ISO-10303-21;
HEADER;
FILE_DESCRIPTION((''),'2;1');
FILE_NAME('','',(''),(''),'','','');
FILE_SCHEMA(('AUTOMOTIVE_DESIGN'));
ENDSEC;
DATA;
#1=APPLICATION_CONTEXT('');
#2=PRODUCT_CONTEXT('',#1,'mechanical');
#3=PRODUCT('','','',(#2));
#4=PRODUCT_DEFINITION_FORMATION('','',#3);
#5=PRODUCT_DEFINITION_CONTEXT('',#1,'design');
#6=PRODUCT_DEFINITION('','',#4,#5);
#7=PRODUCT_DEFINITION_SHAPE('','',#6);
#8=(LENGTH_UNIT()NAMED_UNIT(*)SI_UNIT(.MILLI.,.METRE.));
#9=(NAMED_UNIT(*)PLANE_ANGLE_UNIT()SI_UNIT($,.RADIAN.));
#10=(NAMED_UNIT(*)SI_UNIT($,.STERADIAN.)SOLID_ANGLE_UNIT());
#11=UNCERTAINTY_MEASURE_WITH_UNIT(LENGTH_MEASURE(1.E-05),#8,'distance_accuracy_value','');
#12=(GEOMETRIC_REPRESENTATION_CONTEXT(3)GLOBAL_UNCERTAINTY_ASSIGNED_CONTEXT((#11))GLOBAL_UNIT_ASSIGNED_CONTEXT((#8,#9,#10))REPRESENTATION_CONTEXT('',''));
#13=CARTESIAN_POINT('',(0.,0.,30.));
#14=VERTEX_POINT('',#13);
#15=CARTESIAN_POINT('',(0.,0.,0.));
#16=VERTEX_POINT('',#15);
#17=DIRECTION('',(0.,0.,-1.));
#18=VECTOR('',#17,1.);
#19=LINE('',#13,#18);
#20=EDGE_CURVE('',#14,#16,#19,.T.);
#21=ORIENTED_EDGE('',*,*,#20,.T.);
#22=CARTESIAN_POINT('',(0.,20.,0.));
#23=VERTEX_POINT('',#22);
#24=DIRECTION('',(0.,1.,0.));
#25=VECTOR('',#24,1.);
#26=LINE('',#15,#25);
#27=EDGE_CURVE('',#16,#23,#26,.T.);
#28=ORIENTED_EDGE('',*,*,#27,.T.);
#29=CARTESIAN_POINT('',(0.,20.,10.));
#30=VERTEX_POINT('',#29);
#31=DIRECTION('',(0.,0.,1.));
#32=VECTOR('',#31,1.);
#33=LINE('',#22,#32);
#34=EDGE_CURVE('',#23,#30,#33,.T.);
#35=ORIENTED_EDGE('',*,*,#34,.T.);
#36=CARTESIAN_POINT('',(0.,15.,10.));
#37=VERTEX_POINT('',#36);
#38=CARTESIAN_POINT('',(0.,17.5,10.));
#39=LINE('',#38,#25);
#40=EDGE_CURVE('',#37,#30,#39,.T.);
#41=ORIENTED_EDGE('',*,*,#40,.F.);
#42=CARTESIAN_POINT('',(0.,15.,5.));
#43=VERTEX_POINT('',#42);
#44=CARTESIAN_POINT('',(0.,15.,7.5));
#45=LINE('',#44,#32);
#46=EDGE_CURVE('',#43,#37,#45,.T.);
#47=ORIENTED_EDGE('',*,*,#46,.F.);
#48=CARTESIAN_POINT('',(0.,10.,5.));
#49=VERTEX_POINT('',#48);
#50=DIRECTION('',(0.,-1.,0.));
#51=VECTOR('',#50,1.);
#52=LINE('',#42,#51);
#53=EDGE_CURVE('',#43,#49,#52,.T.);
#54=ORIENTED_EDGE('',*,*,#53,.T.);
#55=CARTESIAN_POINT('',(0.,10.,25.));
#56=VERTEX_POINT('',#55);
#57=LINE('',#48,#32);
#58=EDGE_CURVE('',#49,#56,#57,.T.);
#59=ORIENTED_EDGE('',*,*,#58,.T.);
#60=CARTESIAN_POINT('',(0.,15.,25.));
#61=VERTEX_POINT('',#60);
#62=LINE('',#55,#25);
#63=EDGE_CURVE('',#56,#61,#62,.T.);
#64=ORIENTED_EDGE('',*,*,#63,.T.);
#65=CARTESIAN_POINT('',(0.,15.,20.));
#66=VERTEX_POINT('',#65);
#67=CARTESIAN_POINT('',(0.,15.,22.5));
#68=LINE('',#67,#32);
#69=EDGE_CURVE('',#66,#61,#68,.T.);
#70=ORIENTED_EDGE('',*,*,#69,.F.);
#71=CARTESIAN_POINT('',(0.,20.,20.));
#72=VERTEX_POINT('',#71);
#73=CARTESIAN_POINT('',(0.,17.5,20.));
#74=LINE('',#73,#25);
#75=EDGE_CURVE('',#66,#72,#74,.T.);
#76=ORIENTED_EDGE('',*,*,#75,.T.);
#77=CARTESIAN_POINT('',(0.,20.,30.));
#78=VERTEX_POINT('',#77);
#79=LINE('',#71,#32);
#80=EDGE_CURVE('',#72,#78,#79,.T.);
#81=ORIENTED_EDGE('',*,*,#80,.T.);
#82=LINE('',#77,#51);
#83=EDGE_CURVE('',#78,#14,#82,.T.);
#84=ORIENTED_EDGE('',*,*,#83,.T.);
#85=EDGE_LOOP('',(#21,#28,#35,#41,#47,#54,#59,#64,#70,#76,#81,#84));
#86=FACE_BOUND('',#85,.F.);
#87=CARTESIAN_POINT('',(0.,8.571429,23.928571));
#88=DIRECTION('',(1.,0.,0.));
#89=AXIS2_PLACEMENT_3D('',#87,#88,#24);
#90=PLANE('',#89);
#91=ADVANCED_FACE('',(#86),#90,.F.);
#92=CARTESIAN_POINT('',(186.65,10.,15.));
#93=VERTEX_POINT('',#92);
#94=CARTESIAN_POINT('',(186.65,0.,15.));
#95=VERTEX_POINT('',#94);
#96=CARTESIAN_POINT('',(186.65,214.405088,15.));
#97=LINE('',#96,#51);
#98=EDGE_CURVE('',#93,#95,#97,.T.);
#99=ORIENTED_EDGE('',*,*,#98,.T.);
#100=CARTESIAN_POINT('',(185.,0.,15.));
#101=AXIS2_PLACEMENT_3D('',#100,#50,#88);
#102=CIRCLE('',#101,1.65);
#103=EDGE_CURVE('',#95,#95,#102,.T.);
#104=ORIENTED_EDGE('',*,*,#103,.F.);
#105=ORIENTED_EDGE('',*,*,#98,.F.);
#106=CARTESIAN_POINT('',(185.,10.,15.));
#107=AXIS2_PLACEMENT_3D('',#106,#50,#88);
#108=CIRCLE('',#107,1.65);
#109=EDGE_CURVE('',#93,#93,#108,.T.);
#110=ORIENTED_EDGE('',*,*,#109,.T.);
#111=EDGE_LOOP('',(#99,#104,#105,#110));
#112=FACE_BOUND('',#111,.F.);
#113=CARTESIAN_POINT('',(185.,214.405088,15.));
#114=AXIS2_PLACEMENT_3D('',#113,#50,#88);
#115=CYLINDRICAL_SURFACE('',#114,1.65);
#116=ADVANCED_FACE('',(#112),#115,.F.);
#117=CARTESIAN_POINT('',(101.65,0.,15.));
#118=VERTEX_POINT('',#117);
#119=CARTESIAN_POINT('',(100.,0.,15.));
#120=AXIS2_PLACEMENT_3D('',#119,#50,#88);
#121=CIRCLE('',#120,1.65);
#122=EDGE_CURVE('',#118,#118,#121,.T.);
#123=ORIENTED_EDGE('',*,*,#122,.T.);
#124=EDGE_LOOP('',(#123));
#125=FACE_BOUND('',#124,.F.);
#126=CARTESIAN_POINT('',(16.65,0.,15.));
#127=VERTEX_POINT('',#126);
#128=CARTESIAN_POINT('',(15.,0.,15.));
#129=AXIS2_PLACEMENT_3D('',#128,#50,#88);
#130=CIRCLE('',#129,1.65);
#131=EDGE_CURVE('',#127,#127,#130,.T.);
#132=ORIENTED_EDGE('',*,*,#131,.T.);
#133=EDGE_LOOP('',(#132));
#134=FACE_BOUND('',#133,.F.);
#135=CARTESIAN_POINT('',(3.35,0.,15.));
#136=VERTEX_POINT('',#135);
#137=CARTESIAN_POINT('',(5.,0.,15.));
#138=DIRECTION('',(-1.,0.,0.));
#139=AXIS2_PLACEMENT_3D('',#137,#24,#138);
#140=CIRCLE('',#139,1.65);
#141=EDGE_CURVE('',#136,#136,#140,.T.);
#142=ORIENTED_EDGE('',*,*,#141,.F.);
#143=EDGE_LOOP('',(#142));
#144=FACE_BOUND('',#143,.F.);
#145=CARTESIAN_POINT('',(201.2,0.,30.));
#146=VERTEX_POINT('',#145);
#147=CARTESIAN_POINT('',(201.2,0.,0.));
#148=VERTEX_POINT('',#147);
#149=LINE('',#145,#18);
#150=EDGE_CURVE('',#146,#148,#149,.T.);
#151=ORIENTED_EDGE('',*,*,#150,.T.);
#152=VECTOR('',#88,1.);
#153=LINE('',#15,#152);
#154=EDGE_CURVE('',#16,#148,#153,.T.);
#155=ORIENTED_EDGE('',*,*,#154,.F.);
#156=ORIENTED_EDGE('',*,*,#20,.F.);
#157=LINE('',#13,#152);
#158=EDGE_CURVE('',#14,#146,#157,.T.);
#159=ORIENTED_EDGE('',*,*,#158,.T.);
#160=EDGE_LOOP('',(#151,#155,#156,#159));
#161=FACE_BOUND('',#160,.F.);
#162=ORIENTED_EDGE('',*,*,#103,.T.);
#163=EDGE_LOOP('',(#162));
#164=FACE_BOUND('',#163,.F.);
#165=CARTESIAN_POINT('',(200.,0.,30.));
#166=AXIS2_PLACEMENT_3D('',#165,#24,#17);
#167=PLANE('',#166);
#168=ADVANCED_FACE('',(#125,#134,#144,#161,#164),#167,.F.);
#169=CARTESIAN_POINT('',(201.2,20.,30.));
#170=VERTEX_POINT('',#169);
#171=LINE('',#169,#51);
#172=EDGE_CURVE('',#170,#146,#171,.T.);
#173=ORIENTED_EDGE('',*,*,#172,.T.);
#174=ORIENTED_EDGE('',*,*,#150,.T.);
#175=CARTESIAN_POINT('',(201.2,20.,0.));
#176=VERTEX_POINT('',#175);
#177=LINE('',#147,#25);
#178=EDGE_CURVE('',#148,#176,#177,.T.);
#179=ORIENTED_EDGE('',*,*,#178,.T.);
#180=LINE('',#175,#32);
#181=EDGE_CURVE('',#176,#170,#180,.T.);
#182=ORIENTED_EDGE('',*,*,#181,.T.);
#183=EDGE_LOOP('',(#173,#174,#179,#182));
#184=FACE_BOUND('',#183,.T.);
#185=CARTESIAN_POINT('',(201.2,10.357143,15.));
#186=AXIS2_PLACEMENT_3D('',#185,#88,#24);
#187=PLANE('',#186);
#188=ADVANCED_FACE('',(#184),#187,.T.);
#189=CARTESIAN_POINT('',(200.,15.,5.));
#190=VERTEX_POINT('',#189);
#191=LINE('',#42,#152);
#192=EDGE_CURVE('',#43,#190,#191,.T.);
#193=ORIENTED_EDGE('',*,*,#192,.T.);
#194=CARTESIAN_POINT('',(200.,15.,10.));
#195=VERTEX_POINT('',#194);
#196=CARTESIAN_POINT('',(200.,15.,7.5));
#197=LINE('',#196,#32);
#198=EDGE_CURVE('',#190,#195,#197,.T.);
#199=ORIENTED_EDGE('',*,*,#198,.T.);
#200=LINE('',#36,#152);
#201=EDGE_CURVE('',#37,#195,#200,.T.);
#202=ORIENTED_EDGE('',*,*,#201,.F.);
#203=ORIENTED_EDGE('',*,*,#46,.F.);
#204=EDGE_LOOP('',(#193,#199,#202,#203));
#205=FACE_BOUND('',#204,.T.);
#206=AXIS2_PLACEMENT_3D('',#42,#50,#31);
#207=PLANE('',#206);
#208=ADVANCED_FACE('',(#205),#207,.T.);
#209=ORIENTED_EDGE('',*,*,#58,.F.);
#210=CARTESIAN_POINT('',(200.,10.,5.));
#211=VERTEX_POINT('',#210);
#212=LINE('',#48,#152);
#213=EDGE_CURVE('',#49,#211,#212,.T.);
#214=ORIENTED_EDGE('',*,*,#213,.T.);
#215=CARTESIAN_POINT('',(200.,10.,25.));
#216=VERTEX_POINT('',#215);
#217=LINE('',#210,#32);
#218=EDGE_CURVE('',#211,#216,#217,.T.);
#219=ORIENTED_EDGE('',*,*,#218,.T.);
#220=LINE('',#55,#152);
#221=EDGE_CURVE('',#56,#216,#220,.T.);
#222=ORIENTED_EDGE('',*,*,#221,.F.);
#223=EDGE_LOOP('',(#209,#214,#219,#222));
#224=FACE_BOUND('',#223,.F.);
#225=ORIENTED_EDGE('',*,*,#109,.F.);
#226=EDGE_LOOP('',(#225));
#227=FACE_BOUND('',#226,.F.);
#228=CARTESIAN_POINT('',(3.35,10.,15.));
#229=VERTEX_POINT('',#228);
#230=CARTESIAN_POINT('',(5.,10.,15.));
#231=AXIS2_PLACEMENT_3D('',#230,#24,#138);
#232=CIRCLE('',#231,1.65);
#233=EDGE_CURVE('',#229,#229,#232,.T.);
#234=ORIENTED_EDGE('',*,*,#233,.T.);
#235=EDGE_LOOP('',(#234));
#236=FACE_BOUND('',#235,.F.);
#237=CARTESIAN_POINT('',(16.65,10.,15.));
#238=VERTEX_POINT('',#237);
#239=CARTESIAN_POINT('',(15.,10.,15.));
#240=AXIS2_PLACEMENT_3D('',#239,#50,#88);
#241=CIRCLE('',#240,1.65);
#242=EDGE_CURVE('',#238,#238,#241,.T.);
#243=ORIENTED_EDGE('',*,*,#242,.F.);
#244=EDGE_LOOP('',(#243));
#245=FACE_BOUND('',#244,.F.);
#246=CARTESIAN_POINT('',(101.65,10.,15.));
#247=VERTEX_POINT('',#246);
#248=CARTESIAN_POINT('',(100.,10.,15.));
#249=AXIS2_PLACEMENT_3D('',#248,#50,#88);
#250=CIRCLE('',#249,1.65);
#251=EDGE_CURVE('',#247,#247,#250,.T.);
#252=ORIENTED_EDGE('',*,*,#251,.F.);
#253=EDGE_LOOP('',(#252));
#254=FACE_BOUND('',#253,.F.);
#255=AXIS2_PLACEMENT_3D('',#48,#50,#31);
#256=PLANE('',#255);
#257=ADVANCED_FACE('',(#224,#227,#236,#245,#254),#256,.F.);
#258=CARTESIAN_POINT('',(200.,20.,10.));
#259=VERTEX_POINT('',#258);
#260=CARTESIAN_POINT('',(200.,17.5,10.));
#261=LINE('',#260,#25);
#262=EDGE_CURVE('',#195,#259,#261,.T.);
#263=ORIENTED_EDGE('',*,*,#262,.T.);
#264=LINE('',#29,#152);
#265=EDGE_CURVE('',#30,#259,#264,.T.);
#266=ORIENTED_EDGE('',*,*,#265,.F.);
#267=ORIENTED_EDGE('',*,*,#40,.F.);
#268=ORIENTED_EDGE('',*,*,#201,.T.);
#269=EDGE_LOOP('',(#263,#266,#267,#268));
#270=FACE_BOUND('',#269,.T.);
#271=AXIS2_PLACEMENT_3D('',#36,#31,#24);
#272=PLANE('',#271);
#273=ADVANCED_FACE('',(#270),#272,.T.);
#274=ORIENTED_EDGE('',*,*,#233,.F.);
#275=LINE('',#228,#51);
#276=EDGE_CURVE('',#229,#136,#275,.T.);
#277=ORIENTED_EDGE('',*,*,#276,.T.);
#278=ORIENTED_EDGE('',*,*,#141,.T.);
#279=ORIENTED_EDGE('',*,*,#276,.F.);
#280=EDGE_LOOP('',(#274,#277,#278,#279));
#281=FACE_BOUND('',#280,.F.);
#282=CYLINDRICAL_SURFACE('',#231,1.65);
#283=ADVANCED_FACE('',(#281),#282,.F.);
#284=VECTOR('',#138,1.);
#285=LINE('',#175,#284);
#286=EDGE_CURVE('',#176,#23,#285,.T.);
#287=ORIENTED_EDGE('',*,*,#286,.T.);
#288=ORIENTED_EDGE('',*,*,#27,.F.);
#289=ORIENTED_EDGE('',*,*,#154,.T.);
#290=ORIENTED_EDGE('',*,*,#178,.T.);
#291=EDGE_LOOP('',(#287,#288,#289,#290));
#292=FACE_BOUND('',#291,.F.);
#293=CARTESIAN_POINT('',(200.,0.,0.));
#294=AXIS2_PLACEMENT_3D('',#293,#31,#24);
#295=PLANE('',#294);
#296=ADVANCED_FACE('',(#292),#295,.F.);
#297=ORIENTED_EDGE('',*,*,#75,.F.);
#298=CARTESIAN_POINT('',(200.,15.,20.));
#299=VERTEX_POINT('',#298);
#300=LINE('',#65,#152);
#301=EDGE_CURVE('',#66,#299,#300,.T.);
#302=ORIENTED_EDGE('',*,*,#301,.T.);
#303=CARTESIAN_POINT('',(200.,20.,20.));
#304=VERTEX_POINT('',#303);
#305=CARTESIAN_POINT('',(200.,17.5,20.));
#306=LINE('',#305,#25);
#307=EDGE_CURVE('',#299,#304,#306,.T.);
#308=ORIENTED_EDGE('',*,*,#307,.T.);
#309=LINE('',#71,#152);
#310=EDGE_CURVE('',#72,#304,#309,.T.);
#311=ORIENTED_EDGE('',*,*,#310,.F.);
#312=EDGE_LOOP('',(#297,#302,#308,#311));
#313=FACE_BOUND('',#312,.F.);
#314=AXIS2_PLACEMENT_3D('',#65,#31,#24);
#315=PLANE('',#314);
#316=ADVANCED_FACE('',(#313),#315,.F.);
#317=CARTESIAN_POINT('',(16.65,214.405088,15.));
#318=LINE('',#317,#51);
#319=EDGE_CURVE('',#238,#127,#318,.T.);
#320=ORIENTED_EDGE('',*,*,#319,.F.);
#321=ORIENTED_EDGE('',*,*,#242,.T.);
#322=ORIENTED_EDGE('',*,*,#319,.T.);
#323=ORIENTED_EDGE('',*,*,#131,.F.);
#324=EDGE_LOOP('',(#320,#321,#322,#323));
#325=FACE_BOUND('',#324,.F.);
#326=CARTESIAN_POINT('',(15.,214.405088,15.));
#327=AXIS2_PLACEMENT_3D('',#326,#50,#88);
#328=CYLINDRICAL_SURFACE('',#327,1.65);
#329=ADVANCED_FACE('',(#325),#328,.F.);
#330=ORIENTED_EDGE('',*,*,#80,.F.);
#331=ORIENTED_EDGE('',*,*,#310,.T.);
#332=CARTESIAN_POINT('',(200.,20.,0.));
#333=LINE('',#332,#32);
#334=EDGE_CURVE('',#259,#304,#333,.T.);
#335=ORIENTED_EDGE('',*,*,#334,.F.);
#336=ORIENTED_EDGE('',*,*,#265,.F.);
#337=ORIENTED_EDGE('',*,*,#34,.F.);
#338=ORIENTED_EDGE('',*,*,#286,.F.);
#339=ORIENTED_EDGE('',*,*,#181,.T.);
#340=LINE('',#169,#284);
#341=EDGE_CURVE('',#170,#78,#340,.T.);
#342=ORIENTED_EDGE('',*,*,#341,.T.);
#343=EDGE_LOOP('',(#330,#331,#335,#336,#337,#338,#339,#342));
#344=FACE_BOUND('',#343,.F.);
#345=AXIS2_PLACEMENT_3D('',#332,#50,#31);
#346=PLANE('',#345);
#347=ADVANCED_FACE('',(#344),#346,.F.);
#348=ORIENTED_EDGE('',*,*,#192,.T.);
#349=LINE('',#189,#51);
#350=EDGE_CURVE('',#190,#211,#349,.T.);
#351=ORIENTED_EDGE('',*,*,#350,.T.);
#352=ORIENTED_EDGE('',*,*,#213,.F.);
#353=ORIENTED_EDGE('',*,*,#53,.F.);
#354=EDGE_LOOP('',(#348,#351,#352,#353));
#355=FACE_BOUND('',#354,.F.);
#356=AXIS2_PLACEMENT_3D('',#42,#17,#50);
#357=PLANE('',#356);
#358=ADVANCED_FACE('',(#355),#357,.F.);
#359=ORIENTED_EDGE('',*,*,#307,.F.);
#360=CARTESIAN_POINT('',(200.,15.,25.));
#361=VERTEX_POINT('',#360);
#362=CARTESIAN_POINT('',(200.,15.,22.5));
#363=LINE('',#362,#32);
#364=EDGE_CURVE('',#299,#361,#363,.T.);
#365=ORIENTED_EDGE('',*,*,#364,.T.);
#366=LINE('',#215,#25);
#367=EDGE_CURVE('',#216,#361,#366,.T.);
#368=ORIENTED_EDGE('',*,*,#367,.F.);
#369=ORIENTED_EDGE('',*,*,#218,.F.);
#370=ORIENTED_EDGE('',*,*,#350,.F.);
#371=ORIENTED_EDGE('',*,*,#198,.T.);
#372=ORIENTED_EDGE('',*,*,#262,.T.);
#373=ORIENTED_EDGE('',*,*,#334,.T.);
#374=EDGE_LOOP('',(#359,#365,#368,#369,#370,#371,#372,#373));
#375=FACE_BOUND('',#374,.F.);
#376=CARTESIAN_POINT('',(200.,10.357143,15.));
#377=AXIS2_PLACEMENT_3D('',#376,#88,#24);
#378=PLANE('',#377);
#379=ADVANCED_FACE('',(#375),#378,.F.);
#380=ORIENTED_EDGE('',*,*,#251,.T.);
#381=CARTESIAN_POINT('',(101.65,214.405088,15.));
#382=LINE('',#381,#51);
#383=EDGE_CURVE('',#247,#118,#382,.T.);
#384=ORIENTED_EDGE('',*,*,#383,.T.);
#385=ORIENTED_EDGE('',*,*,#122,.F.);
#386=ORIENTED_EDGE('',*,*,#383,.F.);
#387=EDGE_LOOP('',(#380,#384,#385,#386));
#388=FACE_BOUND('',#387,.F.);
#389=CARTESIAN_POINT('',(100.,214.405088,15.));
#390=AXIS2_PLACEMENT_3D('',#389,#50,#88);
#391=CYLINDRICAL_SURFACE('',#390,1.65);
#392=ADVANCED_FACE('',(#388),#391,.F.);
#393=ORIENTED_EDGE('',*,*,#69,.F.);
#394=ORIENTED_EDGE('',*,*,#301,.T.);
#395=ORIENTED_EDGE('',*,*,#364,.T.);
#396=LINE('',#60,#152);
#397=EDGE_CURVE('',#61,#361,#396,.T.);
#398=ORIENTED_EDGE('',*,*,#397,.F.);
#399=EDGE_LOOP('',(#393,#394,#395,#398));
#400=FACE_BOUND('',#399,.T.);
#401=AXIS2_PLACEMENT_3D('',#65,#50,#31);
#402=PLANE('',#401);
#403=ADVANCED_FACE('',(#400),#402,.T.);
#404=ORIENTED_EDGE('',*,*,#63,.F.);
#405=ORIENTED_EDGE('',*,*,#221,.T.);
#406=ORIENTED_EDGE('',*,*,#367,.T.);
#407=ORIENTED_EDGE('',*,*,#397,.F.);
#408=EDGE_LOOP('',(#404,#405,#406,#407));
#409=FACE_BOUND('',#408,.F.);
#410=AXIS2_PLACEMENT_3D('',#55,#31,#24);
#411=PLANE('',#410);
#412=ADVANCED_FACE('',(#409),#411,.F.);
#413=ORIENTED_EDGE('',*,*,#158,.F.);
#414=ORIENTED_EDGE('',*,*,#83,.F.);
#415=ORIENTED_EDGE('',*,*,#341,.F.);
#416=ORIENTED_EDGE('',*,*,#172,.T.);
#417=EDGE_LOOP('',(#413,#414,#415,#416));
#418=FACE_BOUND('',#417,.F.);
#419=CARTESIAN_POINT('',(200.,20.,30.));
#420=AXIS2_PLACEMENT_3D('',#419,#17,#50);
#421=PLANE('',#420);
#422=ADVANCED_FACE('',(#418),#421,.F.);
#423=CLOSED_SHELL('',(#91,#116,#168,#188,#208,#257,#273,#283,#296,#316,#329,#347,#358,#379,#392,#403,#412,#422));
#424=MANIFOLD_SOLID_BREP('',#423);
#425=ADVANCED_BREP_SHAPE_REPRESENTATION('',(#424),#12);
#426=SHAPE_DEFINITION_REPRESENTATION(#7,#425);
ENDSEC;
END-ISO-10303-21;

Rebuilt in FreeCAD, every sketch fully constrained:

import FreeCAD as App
import Part
import Sketcher

V = App.Vector
Q = App.Units.Quantity

doc = App.newDocument("Part")
body = doc.addObject("PartDesign::Body", "Body")

sketch1 = body.newObject("Sketcher::SketchObject", "Sketch")
sketch1.AttachmentSupport = (doc.getObject("YZ_Plane"), [""])
sketch1.MapMode = "FlatFace"
sketch1.addGeometry([
    Part.LineSegment(V(0, 30, 0), V(0, 0, 0)),
    Part.LineSegment(V(0, 0, 0), V(20, 0, 0)),
    Part.LineSegment(V(20, 0, 0), V(20, 10, 0)),
    Part.LineSegment(V(20, 10, 0), V(15, 10, 0)),
    Part.LineSegment(V(15, 10, 0), V(15, 5, 0)),
    Part.LineSegment(V(15, 5, 0), V(10, 5, 0)),
    Part.LineSegment(V(10, 5, 0), V(10, 25, 0)),
    Part.LineSegment(V(10, 25, 0), V(15, 25, 0)),
    Part.LineSegment(V(15, 25, 0), V(15, 20, 0)),
    Part.LineSegment(V(15, 20, 0), V(20, 20, 0)),
    Part.LineSegment(V(20, 20, 0), V(20, 30, 0)),
    Part.LineSegment(V(20, 30, 0), V(0, 30, 0)),
], False)
sketch1.addConstraint([
    Sketcher.Constraint("Coincident", 0, 2, 1, 1),
    Sketcher.Constraint("Coincident", 1, 2, 2, 1),
    Sketcher.Constraint("Coincident", 2, 2, 3, 1),
    Sketcher.Constraint("Coincident", 3, 2, 4, 1),
    Sketcher.Constraint("Coincident", 4, 2, 5, 1),
    Sketcher.Constraint("Coincident", 5, 2, 6, 1),
    Sketcher.Constraint("Coincident", 6, 2, 7, 1),
    Sketcher.Constraint("Coincident", 7, 2, 8, 1),
    Sketcher.Constraint("Coincident", 8, 2, 9, 1),
    Sketcher.Constraint("Coincident", 9, 2, 10, 1),
    Sketcher.Constraint("Coincident", 10, 2, 11, 1),
    Sketcher.Constraint("Coincident", 11, 2, 0, 1),
    Sketcher.Constraint("Vertical", 0),
    Sketcher.Constraint("Horizontal", 1),
    Sketcher.Constraint("Vertical", 2),
    Sketcher.Constraint("Horizontal", 3),
    Sketcher.Constraint("Vertical", 4),
    Sketcher.Constraint("Horizontal", 5),
    Sketcher.Constraint("Vertical", 6),
    Sketcher.Constraint("Horizontal", 7),
    Sketcher.Constraint("Vertical", 8),
    Sketcher.Constraint("Horizontal", 9),
    Sketcher.Constraint("Vertical", 10),
    Sketcher.Constraint("Horizontal", 11),
    Sketcher.Constraint("Coincident", 0, 2, -1, 1),
    Sketcher.Constraint("Vertical", 4, 2, 7, 2),
    Sketcher.Constraint("Vertical", 2, 2, 9, 2),
    Sketcher.Constraint("Equal", 3, 5),
    Sketcher.Constraint("Equal", 9, 4),
    Sketcher.Constraint("Equal", 11, 6),
    Sketcher.Constraint("Equal", 4, 8),
    Sketcher.Constraint("Equal", 2, 10),
    Sketcher.Constraint("DistanceX", 1, 1, 1, 2, Q("20 mm")),
    Sketcher.Constraint("DistanceX", 3, 2, 3, 1, Q("5 mm")),
    Sketcher.Constraint("DistanceY", 0, 2, 0, 1, Q("30 mm")),
])
pad1 = body.newObject("PartDesign::Pad", "Pad")
pad1.Profile = sketch1
pad1.Length = 200

sketch2 = body.newObject("Sketcher::SketchObject", "Sketch001")
sketch2.AttachmentSupport = (doc.getObject("YZ_Plane"), [""])
sketch2.MapMode = "FlatFace"
sketch2.AttachmentOffset = App.Placement(V(0, 0, 200), App.Rotation())
sketch2.addGeometry([
    Part.LineSegment(V(20, 30, 0), V(0, 30, 0)),
    Part.LineSegment(V(0, 30, 0), V(0, 0, 0)),
    Part.LineSegment(V(0, 0, 0), V(20, 0, 0)),
    Part.LineSegment(V(20, 0, 0), V(20, 30, 0)),
], False)
sketch2.addConstraint([
    Sketcher.Constraint("Coincident", 0, 2, 1, 1),
    Sketcher.Constraint("Coincident", 1, 2, 2, 1),
    Sketcher.Constraint("Coincident", 2, 2, 3, 1),
    Sketcher.Constraint("Coincident", 3, 2, 0, 1),
    Sketcher.Constraint("Horizontal", 0),
    Sketcher.Constraint("Vertical", 1),
    Sketcher.Constraint("Horizontal", 2),
    Sketcher.Constraint("Vertical", 3),
    Sketcher.Constraint("Coincident", 1, 2, -1, 1),
    Sketcher.Constraint("DistanceX", 0, 2, 0, 1, Q("20 mm")),
    Sketcher.Constraint("DistanceY", 1, 2, 1, 1, Q("30 mm")),
])
pad2 = body.newObject("PartDesign::Pad", "Pad001")
pad2.Profile = sketch2
pad2.Length = 1.2

sketch3 = body.newObject("Sketcher::SketchObject", "Sketch002")
sketch3.AttachmentSupport = (doc.getObject("XZ_Plane"), [""])
sketch3.MapMode = "FlatFace"
sketch3.AttachmentOffset = App.Placement(V(0, 0, -10), App.Rotation())
sketch3.addGeometry(Part.Circle(V(5, 15, 0), V(0, 0, 1), 1.6), False)
sketch3.addConstraint([
    Sketcher.Constraint("Diameter", 0, Q("3.3 mm")),
    Sketcher.Constraint("DistanceX", -1, 1, 0, 3, Q("5 mm")),
    Sketcher.Constraint("DistanceY", -1, 1, 0, 3, Q("15 mm")),
])
pocket1 = body.newObject("PartDesign::Pocket", "Pocket")
pocket1.Profile = sketch3
pocket1.Length = 25
pocket1.Reversed = True

sketch4 = body.newObject("Sketcher::SketchObject", "Sketch003")
sketch4.AttachmentSupport = (doc.getObject("XZ_Plane"), [""])
sketch4.MapMode = "FlatFace"
sketch4.AttachmentOffset = App.Placement(V(0, 0, -10), App.Rotation())
sketch4.addGeometry([
    Part.Circle(V(15, 15, 0), V(0, 0, 1), 1.6),
    Part.Circle(V(100, 15, 0), V(0, 0, 1), 1.6),
    Part.Circle(V(185, 15, 0), V(0, 0, 1), 1.6),
], False)
sketch4.addConstraint([
    Sketcher.Constraint("Equal", 0, 1),
    Sketcher.Constraint("Equal", 1, 2),
    Sketcher.Constraint("Horizontal", 0, 3, 1, 3),
    Sketcher.Constraint("Horizontal", 1, 3, 2, 3),
    Sketcher.Constraint("Diameter", 0, Q("3.3 mm")),
    Sketcher.Constraint("DistanceX", -1, 1, 0, 3, Q("15 mm")),
    Sketcher.Constraint("DistanceY", -1, 1, 0, 3, Q("15 mm")),
    Sketcher.Constraint("DistanceX", -1, 1, 1, 3, Q("100 mm")),
    Sketcher.Constraint("DistanceX", -1, 1, 2, 3, Q("185 mm")),
])
doc.recompute()
hole = body.newObject("PartDesign::Hole", "Hole")
hole.Profile = sketch4
hole.ThreadType = "None"
hole.Diameter = 3.3
hole.DepthType = "ThroughAll"
hole.Reversed = True

doc.recompute()
